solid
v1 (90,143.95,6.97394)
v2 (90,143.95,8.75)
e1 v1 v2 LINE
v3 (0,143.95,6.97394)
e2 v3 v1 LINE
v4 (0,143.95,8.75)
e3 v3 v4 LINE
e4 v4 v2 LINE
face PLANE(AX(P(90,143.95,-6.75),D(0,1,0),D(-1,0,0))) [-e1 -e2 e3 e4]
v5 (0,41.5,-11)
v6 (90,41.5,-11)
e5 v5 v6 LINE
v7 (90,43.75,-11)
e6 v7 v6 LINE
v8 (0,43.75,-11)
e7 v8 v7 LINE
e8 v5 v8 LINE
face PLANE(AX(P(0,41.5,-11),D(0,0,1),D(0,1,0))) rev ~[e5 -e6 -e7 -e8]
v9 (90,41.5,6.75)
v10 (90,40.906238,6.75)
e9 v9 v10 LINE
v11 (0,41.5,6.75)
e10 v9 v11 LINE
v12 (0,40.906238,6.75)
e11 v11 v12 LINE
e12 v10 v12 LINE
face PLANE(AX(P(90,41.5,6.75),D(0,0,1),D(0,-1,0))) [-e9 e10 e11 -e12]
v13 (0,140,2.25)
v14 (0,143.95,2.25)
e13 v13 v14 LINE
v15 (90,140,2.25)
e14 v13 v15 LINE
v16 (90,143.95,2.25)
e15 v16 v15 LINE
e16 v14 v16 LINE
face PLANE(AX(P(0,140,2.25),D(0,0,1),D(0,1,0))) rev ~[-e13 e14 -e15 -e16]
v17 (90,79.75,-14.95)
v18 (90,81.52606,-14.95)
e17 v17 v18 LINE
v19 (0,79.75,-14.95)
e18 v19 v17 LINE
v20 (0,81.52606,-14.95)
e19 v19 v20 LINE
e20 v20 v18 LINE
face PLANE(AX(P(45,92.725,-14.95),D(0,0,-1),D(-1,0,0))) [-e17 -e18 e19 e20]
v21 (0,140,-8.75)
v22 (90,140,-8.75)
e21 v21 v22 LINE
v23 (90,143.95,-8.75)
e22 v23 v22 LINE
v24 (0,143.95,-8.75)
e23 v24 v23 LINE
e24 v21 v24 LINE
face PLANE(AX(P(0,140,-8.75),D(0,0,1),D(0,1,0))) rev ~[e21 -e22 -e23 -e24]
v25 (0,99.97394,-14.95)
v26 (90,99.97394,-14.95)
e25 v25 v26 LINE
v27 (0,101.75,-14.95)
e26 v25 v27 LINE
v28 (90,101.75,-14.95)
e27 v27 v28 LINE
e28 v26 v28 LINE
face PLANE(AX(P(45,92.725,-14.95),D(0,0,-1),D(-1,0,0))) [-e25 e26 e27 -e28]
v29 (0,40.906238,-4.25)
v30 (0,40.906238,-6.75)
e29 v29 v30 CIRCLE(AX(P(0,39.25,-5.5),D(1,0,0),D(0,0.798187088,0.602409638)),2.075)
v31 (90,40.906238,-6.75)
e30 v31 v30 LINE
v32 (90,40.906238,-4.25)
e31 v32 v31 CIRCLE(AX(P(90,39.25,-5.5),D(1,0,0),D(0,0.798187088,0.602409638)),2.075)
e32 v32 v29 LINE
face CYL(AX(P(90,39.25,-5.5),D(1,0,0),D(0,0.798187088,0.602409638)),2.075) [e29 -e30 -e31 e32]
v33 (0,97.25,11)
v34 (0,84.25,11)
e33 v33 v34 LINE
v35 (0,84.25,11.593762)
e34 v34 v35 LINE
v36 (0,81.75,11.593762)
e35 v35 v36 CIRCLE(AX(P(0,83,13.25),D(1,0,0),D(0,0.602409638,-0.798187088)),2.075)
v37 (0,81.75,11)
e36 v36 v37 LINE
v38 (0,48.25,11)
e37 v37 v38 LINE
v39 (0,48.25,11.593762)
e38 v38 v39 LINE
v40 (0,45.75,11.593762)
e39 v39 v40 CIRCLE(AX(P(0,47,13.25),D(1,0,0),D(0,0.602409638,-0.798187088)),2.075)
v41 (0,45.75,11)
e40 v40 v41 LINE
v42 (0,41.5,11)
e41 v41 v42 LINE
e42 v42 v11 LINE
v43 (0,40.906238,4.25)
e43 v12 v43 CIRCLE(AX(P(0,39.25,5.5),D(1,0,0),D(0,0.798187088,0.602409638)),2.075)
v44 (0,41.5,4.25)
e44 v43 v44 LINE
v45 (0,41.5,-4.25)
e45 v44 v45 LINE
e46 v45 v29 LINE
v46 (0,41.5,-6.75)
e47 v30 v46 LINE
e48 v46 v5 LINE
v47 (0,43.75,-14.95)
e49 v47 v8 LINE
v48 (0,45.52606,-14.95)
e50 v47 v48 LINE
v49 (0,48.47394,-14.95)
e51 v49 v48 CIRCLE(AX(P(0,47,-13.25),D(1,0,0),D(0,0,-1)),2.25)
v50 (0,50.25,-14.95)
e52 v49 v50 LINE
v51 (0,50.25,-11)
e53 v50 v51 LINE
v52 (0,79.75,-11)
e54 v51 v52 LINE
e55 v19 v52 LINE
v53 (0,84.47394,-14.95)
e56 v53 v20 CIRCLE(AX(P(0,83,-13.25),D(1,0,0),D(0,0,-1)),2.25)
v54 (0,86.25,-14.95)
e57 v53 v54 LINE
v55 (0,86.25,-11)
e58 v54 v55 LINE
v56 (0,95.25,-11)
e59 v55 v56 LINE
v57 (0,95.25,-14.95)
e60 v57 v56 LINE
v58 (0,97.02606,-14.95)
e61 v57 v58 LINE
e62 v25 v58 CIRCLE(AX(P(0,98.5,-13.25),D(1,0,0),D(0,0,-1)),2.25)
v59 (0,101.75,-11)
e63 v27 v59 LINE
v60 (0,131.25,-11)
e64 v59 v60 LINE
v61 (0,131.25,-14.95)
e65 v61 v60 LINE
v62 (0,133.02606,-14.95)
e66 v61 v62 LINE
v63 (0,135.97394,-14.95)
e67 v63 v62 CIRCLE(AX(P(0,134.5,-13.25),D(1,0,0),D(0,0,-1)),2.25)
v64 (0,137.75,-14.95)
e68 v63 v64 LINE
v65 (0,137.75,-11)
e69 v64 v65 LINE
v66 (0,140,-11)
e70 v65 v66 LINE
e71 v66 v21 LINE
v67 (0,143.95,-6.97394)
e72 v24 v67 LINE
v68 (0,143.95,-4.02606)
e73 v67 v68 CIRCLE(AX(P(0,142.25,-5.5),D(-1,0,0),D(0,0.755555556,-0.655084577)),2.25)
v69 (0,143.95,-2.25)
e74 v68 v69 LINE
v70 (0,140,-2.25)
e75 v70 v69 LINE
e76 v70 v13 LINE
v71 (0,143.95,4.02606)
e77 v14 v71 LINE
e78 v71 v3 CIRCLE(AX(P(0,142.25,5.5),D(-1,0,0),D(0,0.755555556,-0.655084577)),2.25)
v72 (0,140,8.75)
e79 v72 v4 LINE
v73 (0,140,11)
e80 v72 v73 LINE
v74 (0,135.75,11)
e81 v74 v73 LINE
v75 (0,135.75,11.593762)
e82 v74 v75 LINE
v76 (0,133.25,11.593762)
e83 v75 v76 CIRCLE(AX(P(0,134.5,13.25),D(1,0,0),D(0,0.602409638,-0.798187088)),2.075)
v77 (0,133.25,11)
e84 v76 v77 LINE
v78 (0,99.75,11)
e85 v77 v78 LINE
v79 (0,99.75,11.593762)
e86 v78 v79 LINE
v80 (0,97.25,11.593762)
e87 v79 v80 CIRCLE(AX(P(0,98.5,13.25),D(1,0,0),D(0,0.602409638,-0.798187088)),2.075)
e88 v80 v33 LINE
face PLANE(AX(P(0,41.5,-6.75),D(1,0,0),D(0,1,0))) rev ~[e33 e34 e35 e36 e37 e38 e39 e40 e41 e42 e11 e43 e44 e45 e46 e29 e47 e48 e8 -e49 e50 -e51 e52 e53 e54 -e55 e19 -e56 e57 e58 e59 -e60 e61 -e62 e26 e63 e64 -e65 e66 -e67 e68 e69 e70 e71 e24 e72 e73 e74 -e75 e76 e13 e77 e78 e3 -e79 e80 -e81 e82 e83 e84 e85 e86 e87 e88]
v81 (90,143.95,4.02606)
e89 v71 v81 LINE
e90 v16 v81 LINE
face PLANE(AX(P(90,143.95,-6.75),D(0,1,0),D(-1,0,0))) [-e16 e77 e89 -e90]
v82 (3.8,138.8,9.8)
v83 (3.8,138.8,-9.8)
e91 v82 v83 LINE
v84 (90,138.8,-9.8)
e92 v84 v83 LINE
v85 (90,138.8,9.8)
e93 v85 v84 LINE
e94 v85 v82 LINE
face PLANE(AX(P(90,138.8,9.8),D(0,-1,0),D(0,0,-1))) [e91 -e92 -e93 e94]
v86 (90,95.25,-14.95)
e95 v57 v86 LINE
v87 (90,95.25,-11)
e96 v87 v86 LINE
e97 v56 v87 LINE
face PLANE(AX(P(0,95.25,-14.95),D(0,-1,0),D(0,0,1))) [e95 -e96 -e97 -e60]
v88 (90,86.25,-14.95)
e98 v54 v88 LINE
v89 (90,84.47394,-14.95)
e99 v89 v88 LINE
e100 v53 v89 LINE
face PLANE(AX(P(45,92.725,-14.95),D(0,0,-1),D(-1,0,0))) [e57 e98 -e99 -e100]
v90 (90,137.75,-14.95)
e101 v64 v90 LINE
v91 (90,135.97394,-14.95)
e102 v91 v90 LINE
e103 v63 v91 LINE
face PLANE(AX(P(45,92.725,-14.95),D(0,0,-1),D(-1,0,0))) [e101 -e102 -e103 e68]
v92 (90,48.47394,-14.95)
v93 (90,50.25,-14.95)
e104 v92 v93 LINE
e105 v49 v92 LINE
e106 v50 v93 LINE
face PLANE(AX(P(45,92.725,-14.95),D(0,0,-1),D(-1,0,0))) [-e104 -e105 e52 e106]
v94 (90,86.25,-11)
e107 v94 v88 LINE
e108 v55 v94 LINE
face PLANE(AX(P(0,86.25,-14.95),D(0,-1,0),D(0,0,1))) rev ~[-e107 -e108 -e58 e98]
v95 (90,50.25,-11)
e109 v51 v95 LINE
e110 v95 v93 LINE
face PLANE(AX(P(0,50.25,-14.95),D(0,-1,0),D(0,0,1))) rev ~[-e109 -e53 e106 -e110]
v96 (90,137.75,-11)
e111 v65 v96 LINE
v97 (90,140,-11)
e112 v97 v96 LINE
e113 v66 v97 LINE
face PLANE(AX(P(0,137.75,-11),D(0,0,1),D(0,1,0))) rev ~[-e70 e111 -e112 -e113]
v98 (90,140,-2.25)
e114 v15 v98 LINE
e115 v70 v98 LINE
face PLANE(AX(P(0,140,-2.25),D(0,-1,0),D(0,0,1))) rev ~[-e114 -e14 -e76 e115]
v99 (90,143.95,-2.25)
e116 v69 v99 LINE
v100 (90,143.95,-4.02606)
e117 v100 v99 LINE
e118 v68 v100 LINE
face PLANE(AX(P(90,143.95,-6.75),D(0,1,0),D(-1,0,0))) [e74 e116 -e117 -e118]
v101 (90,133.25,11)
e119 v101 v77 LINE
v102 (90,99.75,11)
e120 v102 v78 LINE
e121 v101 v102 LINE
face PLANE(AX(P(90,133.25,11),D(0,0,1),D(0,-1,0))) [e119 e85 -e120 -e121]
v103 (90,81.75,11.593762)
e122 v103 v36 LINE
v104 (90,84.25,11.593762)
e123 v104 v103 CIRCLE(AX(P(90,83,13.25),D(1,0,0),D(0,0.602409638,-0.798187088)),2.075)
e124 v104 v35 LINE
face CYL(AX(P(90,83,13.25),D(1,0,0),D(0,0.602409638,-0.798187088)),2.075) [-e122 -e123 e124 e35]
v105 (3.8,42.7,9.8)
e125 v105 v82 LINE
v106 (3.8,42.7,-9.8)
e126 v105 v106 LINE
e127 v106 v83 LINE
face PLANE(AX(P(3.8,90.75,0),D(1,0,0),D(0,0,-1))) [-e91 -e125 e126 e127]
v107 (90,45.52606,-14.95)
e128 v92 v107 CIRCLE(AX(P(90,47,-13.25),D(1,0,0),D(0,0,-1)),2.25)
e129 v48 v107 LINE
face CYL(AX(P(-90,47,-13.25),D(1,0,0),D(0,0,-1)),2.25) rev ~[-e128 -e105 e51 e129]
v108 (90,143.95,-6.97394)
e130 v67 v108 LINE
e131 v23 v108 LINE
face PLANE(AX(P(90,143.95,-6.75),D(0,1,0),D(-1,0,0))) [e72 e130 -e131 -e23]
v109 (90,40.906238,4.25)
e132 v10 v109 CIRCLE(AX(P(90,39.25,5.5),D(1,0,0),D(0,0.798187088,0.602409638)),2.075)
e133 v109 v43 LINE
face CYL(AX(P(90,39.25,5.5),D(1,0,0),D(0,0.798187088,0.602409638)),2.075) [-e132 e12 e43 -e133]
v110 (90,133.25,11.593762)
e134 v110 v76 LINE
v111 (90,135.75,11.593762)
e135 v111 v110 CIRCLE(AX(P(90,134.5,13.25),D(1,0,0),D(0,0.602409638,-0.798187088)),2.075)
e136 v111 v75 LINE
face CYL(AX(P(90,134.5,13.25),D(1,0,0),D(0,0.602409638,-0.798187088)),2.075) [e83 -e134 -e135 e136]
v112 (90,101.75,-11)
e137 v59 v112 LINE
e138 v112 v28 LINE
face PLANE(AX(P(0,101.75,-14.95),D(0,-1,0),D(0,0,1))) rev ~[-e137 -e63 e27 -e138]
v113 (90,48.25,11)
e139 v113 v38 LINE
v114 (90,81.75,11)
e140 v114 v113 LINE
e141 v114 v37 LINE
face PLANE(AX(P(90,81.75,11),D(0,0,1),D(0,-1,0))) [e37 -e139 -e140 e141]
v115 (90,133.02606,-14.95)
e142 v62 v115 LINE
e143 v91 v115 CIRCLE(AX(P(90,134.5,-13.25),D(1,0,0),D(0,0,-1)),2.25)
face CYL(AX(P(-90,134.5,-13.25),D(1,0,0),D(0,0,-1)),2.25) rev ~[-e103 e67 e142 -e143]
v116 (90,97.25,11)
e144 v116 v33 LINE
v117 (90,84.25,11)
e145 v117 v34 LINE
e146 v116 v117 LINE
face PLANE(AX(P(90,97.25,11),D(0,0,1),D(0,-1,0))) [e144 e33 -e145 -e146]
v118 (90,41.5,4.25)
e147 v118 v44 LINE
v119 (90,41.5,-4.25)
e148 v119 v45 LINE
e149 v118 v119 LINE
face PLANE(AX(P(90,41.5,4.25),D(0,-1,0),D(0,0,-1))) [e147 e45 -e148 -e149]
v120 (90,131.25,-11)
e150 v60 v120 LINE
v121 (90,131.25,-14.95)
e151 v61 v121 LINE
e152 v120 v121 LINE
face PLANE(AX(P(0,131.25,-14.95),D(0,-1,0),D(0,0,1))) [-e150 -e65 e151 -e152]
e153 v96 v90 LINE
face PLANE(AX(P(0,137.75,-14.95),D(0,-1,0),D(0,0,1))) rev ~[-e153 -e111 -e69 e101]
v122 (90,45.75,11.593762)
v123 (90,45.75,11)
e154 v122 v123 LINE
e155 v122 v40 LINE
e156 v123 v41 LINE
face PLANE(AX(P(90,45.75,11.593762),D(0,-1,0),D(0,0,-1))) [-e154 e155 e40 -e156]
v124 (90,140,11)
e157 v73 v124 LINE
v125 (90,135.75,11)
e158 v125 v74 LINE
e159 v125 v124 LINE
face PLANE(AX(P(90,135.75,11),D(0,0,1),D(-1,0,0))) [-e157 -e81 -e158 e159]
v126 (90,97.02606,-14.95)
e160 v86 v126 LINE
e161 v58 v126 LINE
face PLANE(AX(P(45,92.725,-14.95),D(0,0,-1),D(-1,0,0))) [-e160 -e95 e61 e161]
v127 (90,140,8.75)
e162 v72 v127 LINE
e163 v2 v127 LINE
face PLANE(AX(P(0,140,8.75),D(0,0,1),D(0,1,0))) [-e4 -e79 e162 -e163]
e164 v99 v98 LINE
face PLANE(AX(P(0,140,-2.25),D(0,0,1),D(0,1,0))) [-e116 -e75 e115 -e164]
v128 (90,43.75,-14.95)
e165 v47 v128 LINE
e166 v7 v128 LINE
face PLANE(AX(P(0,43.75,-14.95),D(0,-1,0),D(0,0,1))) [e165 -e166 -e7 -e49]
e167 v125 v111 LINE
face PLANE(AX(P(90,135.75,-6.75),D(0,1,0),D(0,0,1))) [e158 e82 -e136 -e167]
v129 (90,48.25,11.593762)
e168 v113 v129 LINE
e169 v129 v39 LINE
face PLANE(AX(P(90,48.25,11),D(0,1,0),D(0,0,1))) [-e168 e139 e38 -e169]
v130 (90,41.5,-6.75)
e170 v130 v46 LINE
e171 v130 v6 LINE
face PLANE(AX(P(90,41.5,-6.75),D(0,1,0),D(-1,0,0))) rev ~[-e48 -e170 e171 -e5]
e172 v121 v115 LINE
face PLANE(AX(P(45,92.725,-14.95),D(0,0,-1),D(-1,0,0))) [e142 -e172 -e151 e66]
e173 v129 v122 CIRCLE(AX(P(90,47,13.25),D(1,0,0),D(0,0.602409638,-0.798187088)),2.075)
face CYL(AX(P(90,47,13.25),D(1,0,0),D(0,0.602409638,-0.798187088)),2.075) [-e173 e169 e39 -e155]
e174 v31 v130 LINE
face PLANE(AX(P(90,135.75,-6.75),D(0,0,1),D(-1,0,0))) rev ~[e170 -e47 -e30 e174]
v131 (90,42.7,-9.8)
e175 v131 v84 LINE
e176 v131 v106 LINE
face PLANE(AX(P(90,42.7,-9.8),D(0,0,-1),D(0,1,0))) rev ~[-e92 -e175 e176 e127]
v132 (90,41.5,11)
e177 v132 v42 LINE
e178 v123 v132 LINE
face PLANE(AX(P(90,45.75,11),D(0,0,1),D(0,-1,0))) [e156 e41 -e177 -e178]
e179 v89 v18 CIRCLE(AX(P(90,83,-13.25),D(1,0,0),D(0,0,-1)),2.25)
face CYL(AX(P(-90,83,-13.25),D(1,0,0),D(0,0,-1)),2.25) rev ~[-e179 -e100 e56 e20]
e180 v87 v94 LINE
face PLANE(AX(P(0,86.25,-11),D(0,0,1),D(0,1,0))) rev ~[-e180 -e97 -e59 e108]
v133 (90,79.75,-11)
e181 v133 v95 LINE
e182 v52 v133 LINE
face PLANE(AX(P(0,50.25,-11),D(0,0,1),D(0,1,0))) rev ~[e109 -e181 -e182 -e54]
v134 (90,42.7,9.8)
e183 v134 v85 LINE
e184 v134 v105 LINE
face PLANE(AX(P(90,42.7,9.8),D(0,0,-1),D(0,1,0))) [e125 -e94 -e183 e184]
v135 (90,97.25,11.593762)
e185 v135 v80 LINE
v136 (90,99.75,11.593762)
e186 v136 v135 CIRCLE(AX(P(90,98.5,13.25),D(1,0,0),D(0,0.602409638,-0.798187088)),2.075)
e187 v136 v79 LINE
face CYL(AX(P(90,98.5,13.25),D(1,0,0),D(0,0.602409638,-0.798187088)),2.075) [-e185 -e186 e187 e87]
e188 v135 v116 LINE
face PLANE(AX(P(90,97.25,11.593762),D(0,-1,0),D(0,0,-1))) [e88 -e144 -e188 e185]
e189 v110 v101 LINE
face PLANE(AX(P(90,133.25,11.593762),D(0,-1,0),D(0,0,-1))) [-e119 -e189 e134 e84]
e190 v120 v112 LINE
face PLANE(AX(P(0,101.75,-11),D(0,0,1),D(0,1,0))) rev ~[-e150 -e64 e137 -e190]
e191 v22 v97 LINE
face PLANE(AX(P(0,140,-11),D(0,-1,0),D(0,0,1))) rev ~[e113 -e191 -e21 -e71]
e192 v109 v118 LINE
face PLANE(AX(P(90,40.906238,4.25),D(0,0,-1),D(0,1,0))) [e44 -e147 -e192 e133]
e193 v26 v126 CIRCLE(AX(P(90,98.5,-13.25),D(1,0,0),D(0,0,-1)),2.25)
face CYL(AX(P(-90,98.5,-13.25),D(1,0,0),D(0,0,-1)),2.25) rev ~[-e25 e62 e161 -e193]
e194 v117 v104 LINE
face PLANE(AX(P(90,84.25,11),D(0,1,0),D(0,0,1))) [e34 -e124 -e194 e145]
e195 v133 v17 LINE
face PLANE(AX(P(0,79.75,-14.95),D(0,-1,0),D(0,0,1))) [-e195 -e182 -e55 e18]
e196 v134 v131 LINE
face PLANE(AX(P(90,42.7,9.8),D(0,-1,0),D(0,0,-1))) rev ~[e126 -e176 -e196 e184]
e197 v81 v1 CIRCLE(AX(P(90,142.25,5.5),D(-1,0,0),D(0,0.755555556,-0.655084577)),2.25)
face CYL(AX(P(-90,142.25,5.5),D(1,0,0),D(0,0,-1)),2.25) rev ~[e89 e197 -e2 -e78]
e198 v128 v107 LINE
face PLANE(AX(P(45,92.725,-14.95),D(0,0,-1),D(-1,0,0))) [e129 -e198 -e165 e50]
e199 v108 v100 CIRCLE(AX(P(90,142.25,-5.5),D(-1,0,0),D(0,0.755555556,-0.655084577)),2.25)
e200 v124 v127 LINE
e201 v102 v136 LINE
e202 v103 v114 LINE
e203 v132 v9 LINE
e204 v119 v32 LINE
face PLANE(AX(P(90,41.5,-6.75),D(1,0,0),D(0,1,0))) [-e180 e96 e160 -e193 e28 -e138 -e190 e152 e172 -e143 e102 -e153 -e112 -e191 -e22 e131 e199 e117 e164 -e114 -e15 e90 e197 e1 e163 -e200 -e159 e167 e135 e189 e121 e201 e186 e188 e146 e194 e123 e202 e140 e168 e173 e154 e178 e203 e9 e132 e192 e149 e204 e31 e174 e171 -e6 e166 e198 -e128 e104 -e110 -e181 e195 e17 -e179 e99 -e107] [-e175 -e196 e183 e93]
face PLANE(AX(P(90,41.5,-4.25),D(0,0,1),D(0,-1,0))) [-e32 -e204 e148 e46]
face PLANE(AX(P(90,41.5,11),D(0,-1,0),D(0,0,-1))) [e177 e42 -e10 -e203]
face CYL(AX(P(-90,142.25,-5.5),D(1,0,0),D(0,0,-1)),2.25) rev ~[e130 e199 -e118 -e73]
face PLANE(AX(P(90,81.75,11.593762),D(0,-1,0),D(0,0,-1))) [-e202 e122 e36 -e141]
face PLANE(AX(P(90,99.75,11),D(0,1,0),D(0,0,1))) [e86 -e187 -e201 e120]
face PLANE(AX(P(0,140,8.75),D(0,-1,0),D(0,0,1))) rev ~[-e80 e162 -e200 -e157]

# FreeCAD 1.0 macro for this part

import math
import FreeCAD as App
import Part
import Sketcher

V = App.Vector

doc = App.newDocument("Part")
body = doc.addObject("PartDesign::Body", "Body")

sketch1 = body.newObject("Sketcher::SketchObject", "Sketch")
sketch1.AttachmentSupport = (doc.getObject("YZ_Plane"), [""])
sketch1.MapMode = "FlatFace"
sketch1.AttachmentOffset = App.Placement(V(0, 0, 90), App.Rotation())
sketch1.addGeometry([
    Part.LineSegment(V(40.9, -6.8, 0), V(135.8, -6.8, 0)),
    Part.LineSegment(V(135.8, -6.8, 0), V(135.8, 11.6, 0)),
    Part.ArcOfCircle(Part.Circle(V(134.5, 13.2, 0), V(0, 0, 1), 2.1), math.radians(-53), math.radians(233)),
    Part.LineSegment(V(133.2, 11.6, 0), V(133.2, 11, 0)),
    Part.LineSegment(V(133.2, 11, 0), V(99.8, 11, 0)),
    Part.LineSegment(V(99.8, 11, 0), V(99.8, 11.6, 0)),
    Part.ArcOfCircle(Part.Circle(V(98.5, 13.2, 0), V(0, 0, 1), 2.1), math.radians(-53), math.radians(233)),
    Part.LineSegment(V(97.2, 11.6, 0), V(97.2, 11, 0)),
    Part.LineSegment(V(97.2, 11, 0), V(84.2, 11, 0)),
    Part.LineSegment(V(84.2, 11, 0), V(84.2, 11.6, 0)),
    Part.ArcOfCircle(Part.Circle(V(83, 13.2, 0), V(0, 0, 1), 2.1), math.radians(-53), math.radians(233)),
    Part.LineSegment(V(81.8, 11.6, 0), V(81.8, 11, 0)),
    Part.LineSegment(V(81.8, 11, 0), V(48.2, 11, 0)),
    Part.LineSegment(V(48.2, 11, 0), V(48.2, 11.6, 0)),
    Part.ArcOfCircle(Part.Circle(V(47, 13.2, 0), V(0, 0, 1), 2.1), math.radians(-53), math.radians(233)),
    Part.LineSegment(V(45.8, 11.6, 0), V(45.8, 11, 0)),
    Part.LineSegment(V(45.8, 11, 0), V(41.5, 11, 0)),
    Part.LineSegment(V(41.5, 11, 0), V(41.5, 6.8, 0)),
    Part.LineSegment(V(41.5, 6.8, 0), V(40.9, 6.8, 0)),
    Part.ArcOfCircle(Part.Circle(V(39.2, 5.5, 0), V(0, 0, 1), 2.1), math.radians(37), math.radians(323)),
    Part.LineSegment(V(40.9, 4.2, 0), V(41.5, 4.2, 0)),
    Part.LineSegment(V(41.5, 4.2, 0), V(41.5, -4.2, 0)),
    Part.LineSegment(V(41.5, -4.2, 0), V(40.9, -4.2, 0)),
    Part.ArcOfCircle(Part.Circle(V(39.2, -5.5, 0), V(0, 0, 1), 2.1), math.radians(37), math.radians(323)),
], False)
sketch1.addConstraint([
    Sketcher.Constraint("Coincident", 0, 2, 1, 1),
    Sketcher.Constraint("Coincident", 1, 2, 2, 1),
    Sketcher.Constraint("Coincident", 2, 2, 3, 1),
    Sketcher.Constraint("Coincident", 3, 2, 4, 1),
    Sketcher.Constraint("Coincident", 4, 2, 5, 1),
    Sketcher.Constraint("Coincident", 5, 2, 6, 1),
    Sketcher.Constraint("Coincident", 6, 2, 7, 1),
    Sketcher.Constraint("Coincident", 7, 2, 8, 1),
    Sketcher.Constraint("Coincident", 8, 2, 9, 1),
    Sketcher.Constraint("Coincident", 9, 2, 10, 1),
    Sketcher.Constraint("Coincident", 10, 2, 11, 1),
    Sketcher.Constraint("Coincident", 11, 2, 12, 1),
    Sketcher.Constraint("Coincident", 12, 2, 13, 1),
    Sketcher.Constraint("Coincident", 13, 2, 14, 1),
    Sketcher.Constraint("Coincident", 14, 2, 15, 1),
    Sketcher.Constraint("Coincident", 15, 2, 16, 1),
    Sketcher.Constraint("Coincident", 16, 2, 17, 1),
    Sketcher.Constraint("Coincident", 17, 2, 18, 1),
    Sketcher.Constraint("Coincident", 18, 2, 19, 1),
    Sketcher.Constraint("Coincident", 19, 2, 20, 1),
    Sketcher.Constraint("Coincident", 20, 2, 21, 1),
    Sketcher.Constraint("Coincident", 21, 2, 22, 1),
    Sketcher.Constraint("Coincident", 22, 2, 23, 1),
    Sketcher.Constraint("Coincident", 23, 2, 0, 1),
    Sketcher.Constraint("Horizontal", 0),
    Sketcher.Constraint("Vertical", 1),
    Sketcher.Constraint("Vertical", 3),
    Sketcher.Constraint("Horizontal", 4),
    Sketcher.Constraint("Vertical", 5),
    Sketcher.Constraint("Vertical", 7),
    Sketcher.Constraint("Horizontal", 8),
    Sketcher.Constraint("Vertical", 9),
    Sketcher.Constraint("Vertical", 11),
    Sketcher.Constraint("Horizontal", 12),
    Sketcher.Constraint("Vertical", 13),
    Sketcher.Constraint("Vertical", 15),
    Sketcher.Constraint("Horizontal", 16),
    Sketcher.Constraint("Vertical", 17),
    Sketcher.Constraint("Horizontal", 18),
    Sketcher.Constraint("Horizontal", 20),
    Sketcher.Constraint("Vertical", 21),
    Sketcher.Constraint("Horizontal", 22),
    Sketcher.Constraint("Equal", 2, 6),
    Sketcher.Constraint("Equal", 6, 10),
    Sketcher.Constraint("Equal", 10, 14),
    Sketcher.Constraint("Equal", 14, 19),
    Sketcher.Constraint("Equal", 19, 23),
    Sketcher.Constraint("Symmetric", 19, 3, 23, 3, -1),
    Sketcher.Constraint("Horizontal", 2, 3, 6, 3),
    Sketcher.Constraint("Horizontal", 6, 3, 10, 3),
    Sketcher.Constraint("Horizontal", 10, 3, 14, 3),
    Sketcher.Constraint("Horizontal", 1, 2, 2, 2),
    Sketcher.Constraint("Horizontal", 2, 2, 5, 2),
    Sketcher.Constraint("Horizontal", 5, 2, 6, 2),
    Sketcher.Constraint("Horizontal", 4, 2, 7, 2),
    Sketcher.Constraint("Horizontal", 6, 2, 9, 2),
    Sketcher.Constraint("Horizontal", 9, 2, 10, 2),
    Sketcher.Constraint("Horizontal", 8, 2, 11, 2),
    Sketcher.Constraint("Horizontal", 10, 2, 13, 2),
    Sketcher.Constraint("Horizontal", 13, 2, 14, 2),
    Sketcher.Constraint("Horizontal", 12, 2, 15, 2),
    Sketcher.Constraint("Vertical", 18, 2, 19, 2),
    Sketcher.Constraint("Vertical", 17, 2, 20, 2),
    Sketcher.Constraint("Vertical", 19, 2, 22, 2),
    Sketcher.Constraint("Vertical", 22, 2, 23, 2),
    Sketcher.Constraint("Equal", 4, 12),
    Sketcher.Constraint("Equal", 22, 3),
    Sketcher.Constraint("Equal", 16, 17),
    Sketcher.Constraint("DistanceX", 8, 2, 8, 1, 13.0),
    Sketcher.Constraint("DistanceX", 4, 2, 4, 1, 33.5),
    Sketcher.Constraint("DistanceY", 21, 2, 21, 1, 8.5),
    Sketcher.Constraint("DistanceX", -1, 1, 10, 3, 83.0),
    Sketcher.Constraint("DistanceX", -1, 1, 14, 3, 47.0),
    Sketcher.Constraint("DistanceY", -1, 1, 3, 2, 11.0),
    Sketcher.Constraint("Radius", 2, 2.075),
    Sketcher.Constraint("DistanceY", 23, 3, 19, 3, 11.0),
    Sketcher.Constraint("DistanceY", 0, 2, 2, 3, 20.0),
])
pad1 = body.newObject("PartDesign::Pad", "Pad")
pad1.Profile = sketch1
pad1.Length = 90
pad1.Reversed = True

sketch2 = body.newObject("Sketcher::SketchObject", "Sketch001")
sketch2.AttachmentSupport = (doc.getObject("XZ_Plane"), [""])
sketch2.MapMode = "FlatFace"
sketch2.AttachmentOffset = App.Placement(V(0, 0, -135.75), App.Rotation())
sketch2.addGeometry([
    Part.LineSegment(V(90, 11, 0), V(90, -7, 0)),
    Part.LineSegment(V(90, -7, 0), V(0, -7, 0)),
    Part.LineSegment(V(0, -7, 0), V(0, 11, 0)),
    Part.LineSegment(V(0, 11, 0), V(90, 11, 0)),
], False)
sketch2.addConstraint([
    Sketcher.Constraint("Coincident", 0, 2, 1, 1),
    Sketcher.Constraint("Coincident", 1, 2, 2, 1),
    Sketcher.Constraint("Coincident", 2, 2, 3, 1),
    Sketcher.Constraint("Coincident", 3, 2, 0, 1),
    Sketcher.Constraint("Vertical", 0),
    Sketcher.Constraint("Horizontal", 1),
    Sketcher.Constraint("Vertical", 2),
    Sketcher.Constraint("Horizontal", 3),
    Sketcher.Constraint("PointOnObject", 1, 2, -2),
    Sketcher.Constraint("DistanceX", 1, 2, 1, 1, 90.0),
    Sketcher.Constraint("DistanceY", -1, 1, 2, 2, 11.0),
    Sketcher.Constraint("DistanceY", 0, 2, 0, 1, 17.75),
])
pad2 = body.newObject("PartDesign::Pad", "Pad001")
pad2.Profile = sketch2
pad2.Length = 8.2
pad2.Reversed = True

sketch3 = body.newObject("Sketcher::SketchObject", "Sketch002")
sketch3.AttachmentSupport = (doc.getObject("XY_Plane"), [""])
sketch3.MapMode = "FlatFace"
sketch3.AttachmentOffset = App.Placement(V(0, 0, -6.75), App.Rotation())
sketch3.addGeometry([
    Part.LineSegment(V(90, 144, 0), V(90, 42, 0)),
    Part.LineSegment(V(90, 42, 0), V(0, 42, 0)),
    Part.LineSegment(V(0, 42, 0), V(0, 144, 0)),
    Part.LineSegment(V(0, 144, 0), V(90, 144, 0)),
], False)
sketch3.addConstraint([
    Sketcher.Constraint("Coincident", 0, 2, 1, 1),
    Sketcher.Constraint("Coincident", 1, 2, 2, 1),
    Sketcher.Constraint("Coincident", 2, 2, 3, 1),
    Sketcher.Constraint("Coincident", 3, 2, 0, 1),
    Sketcher.Constraint("Vertical", 0),
    Sketcher.Constraint("Horizontal", 1),
    Sketcher.Constraint("Vertical", 2),
    Sketcher.Constraint("Horizontal", 3),
    Sketcher.Constraint("PointOnObject", 1, 2, -2),
    Sketcher.Constraint("DistanceX", 1, 2, 1, 1, 90.0),
    Sketcher.Constraint("DistanceY", 0, 2, 0, 1, 102.45),
    Sketcher.Constraint("DistanceY", -1, 1, 0, 2, 41.5),
])
pad3 = body.newObject("PartDesign::Pad", "Pad002")
pad3.Profile = sketch3
pad3.Length = 8.2
pad3.Reversed = True

sketch4 = body.newObject("Sketcher::SketchObject", "Sketch003")
sketch4.AttachmentSupport = (doc.getObject("YZ_Plane"), [""])
sketch4.MapMode = "FlatFace"
sketch4.addGeometry([
    Part.LineSegment(V(43.8, -14.9, 0), V(41.5, -14.9, 0)),
    Part.LineSegment(V(41.5, -14.9, 0), V(41.5, -11, 0)),
    Part.LineSegment(V(41.5, -11, 0), V(43.8, -11, 0)),
    Part.LineSegment(V(43.8, -11, 0), V(43.8, -14.9, 0)),
], False)
sketch4.addConstraint([
    Sketcher.Constraint("Coincident", 0, 2, 1, 1),
    Sketcher.Constraint("Coincident", 1, 2, 2, 1),
    Sketcher.Constraint("Coincident", 2, 2, 3, 1),
    Sketcher.Constraint("Coincident", 3, 2, 0, 1),
    Sketcher.Constraint("Horizontal", 0),
    Sketcher.Constraint("Vertical", 1),
    Sketcher.Constraint("Horizontal", 2),
    Sketcher.Constraint("Vertical", 3),
    Sketcher.Constraint("DistanceY", 1, 2, -1, 1, 11.0),
    Sketcher.Constraint("DistanceX", 0, 2, 0, 1, 2.25),
    Sketcher.Constraint("DistanceY", 1, 1, 1, 2, 3.95),
    Sketcher.Constraint("DistanceX", -1, 1, 0, 2, 41.5),
])
pocket1 = body.newObject("PartDesign::Pocket", "Pocket")
pocket1.Profile = sketch4
pocket1.Type = "ThroughAll"
pocket1.Reversed = True

sketch5 = body.newObject("Sketcher::SketchObject", "Sketch004")
sketch5.AttachmentSupport = (doc.getObject("YZ_Plane"), [""])
sketch5.MapMode = "FlatFace"
sketch5.addGeometry([
    Part.LineSegment(V(79.8, -14.9, 0), V(50.2, -14.9, 0)),
    Part.LineSegment(V(50.2, -14.9, 0), V(50.2, -11, 0)),
    Part.LineSegment(V(50.2, -11, 0), V(79.8, -11, 0)),
    Part.LineSegment(V(79.8, -11, 0), V(79.8, -14.9, 0)),
], False)
sketch5.addConstraint([
    Sketcher.Constraint("Coincident", 0, 2, 1, 1),
    Sketcher.Constraint("Coincident", 1, 2, 2, 1),
    Sketcher.Constraint("Coincident", 2, 2, 3, 1),
    Sketcher.Constraint("Coincident", 3, 2, 0, 1),
    Sketcher.Constraint("Horizontal", 0),
    Sketcher.Constraint("Vertical", 1),
    Sketcher.Constraint("Horizontal", 2),
    Sketcher.Constraint("Vertical", 3),
    Sketcher.Constraint("DistanceX", 0, 2, 0, 1, 29.5),
    Sketcher.Constraint("DistanceY", 1, 2, -1, 1, 11.0),
    Sketcher.Constraint("DistanceY", 1, 1, 1, 2, 3.95),
    Sketcher.Constraint("DistanceX", -1, 1, 0, 2, 50.25),
])
pocket2 = body.newObject("PartDesign::Pocket", "Pocket001")
pocket2.Profile = sketch5
pocket2.Type = "ThroughAll"
pocket2.Reversed = True

sketch6 = body.newObject("Sketcher::SketchObject", "Sketch005")
sketch6.AttachmentSupport = (doc.getObject("YZ_Plane"), [""])
sketch6.MapMode = "FlatFace"
sketch6.addGeometry([
    Part.LineSegment(V(95.2, -14.9, 0), V(86.2, -14.9, 0)),
    Part.LineSegment(V(86.2, -14.9, 0), V(86.2, -11, 0)),
    Part.LineSegment(V(86.2, -11, 0), V(95.2, -11, 0)),
    Part.LineSegment(V(95.2, -11, 0), V(95.2, -14.9, 0)),
], False)
sketch6.addConstraint([
    Sketcher.Constraint("Coincident", 0, 2, 1, 1),
    Sketcher.Constraint("Coincident", 1, 2, 2, 1),
    Sketcher.Constraint("Coincident", 2, 2, 3, 1),
    Sketcher.Constraint("Coincident", 3, 2, 0, 1),
    Sketcher.Constraint("Horizontal", 0),
    Sketcher.Constraint("Vertical", 1),
    Sketcher.Constraint("Horizontal", 2),
    Sketcher.Constraint("Vertical", 3),
    Sketcher.Constraint("DistanceX", 0, 2, 0, 1, 9.0),
    Sketcher.Constraint("DistanceY", 1, 2, -1, 1, 11.0),
    Sketcher.Constraint("DistanceY", 1, 1, 1, 2, 3.95),
    Sketcher.Constraint("DistanceX", -1, 1, 0, 2, 86.25),
])
pocket3 = body.newObject("PartDesign::Pocket", "Pocket002")
pocket3.Profile = sketch6
pocket3.Type = "ThroughAll"
pocket3.Reversed = True

sketch7 = body.newObject("Sketcher::SketchObject", "Sketch006")
sketch7.AttachmentSupport = (doc.getObject("YZ_Plane"), [""])
sketch7.MapMode = "FlatFace"
sketch7.addGeometry([
    Part.LineSegment(V(131.2, -14.9, 0), V(101.8, -14.9, 0)),
    Part.LineSegment(V(101.8, -14.9, 0), V(101.8, -11, 0)),
    Part.LineSegment(V(101.8, -11, 0), V(131.2, -11, 0)),
    Part.LineSegment(V(131.2, -11, 0), V(131.2, -14.9, 0)),
], False)
sketch7.addConstraint([
    Sketcher.Constraint("Coincident", 0, 2, 1, 1),
    Sketcher.Constraint("Coincident", 1, 2, 2, 1),
    Sketcher.Constraint("Coincident", 2, 2, 3, 1),
    Sketcher.Constraint("Coincident", 3, 2, 0, 1),
    Sketcher.Constraint("Horizontal", 0),
    Sketcher.Constraint("Vertical", 1),
    Sketcher.Constraint("Horizontal", 2),
    Sketcher.Constraint("Vertical", 3),
    Sketcher.Constraint("DistanceX", 0, 2, 0, 1, 29.5),
    Sketcher.Constraint("DistanceY", 1, 2, -1, 1, 11.0),
    Sketcher.Constraint("DistanceY", 1, 1, 1, 2, 3.95),
    Sketcher.Constraint("DistanceX", -1, 1, 0, 2, 101.75),
])
pocket4 = body.newObject("PartDesign::Pocket", "Pocket003")
pocket4.Profile = sketch7
pocket4.Type = "ThroughAll"
pocket4.Reversed = True

sketch8 = body.newObject("Sketcher::SketchObject", "Sketch007")
sketch8.AttachmentSupport = (doc.getObject("YZ_Plane"), [""])
sketch8.MapMode = "FlatFace"
sketch8.addGeometry([
    Part.LineSegment(V(143.9, -14.9, 0), V(137.8, -14.9, 0)),
    Part.LineSegment(V(137.8, -14.9, 0), V(137.8, -11, 0)),
    Part.LineSegment(V(137.8, -11, 0), V(143.9, -11, 0)),
    Part.LineSegment(V(143.9, -11, 0), V(143.9, -14.9, 0)),
], False)
sketch8.addConstraint([
    Sketcher.Constraint("Coincident", 0, 2, 1, 1),
    Sketcher.Constraint("Coincident", 1, 2, 2, 1),
    Sketcher.Constraint("Coincident", 2, 2, 3, 1),
    Sketcher.Constraint("Coincident", 3, 2, 0, 1),
    Sketcher.Constraint("Horizontal", 0),
    Sketcher.Constraint("Vertical", 1),
    Sketcher.Constraint("Horizontal", 2),
    Sketcher.Constraint("Vertical", 3),
    Sketcher.Constraint("DistanceX", 0, 2, 0, 1, 6.2),
    Sketcher.Constraint("DistanceY", 1, 2, -1, 1, 11.0),
    Sketcher.Constraint("DistanceY", 1, 1, 1, 2, 3.95),
    Sketcher.Constraint("DistanceX", -1, 1, 0, 2, 137.75),
])
pocket5 = body.newObject("PartDesign::Pocket", "Pocket004")
pocket5.Profile = sketch8
pocket5.Type = "ThroughAll"
pocket5.Reversed = True

sketch9 = body.newObject("Sketcher::SketchObject", "Sketch008")
sketch9.AttachmentSupport = (doc.getObject("YZ_Plane"), [""])
sketch9.MapMode = "FlatFace"
sketch9.addGeometry([
    Part.LineSegment(V(143.9, -11, 0), V(140, -11, 0)),
    Part.LineSegment(V(140, -11, 0), V(140, -8.8, 0)),
    Part.LineSegment(V(140, -8.8, 0), V(143.9, -8.8, 0)),
    Part.LineSegment(V(143.9, -8.8, 0), V(143.9, -11, 0)),
], False)
sketch9.addConstraint([
    Sketcher.Constraint("Coincident", 0, 2, 1, 1),
    Sketcher.Constraint("Coincident", 1, 2, 2, 1),
    Sketcher.Constraint("Coincident", 2, 2, 3, 1),
    Sketcher.Constraint("Coincident", 3, 2, 0, 1),
    Sketcher.Constraint("Horizontal", 0),
    Sketcher.Constraint("Vertical", 1),
    Sketcher.Constraint("Horizontal", 2),
    Sketcher.Constraint("Vertical", 3),
    Sketcher.Constraint("DistanceX", -1, 1, 0, 2, 140.0),
    Sketcher.Constraint("DistanceY", 0, 2, -1, 1, 11.0),
    Sketcher.Constraint("DistanceX", 0, 2, 0, 1, 3.95),
    Sketcher.Constraint("DistanceY", 1, 1, 1, 2, 2.25),
])
pocket6 = body.newObject("PartDesign::Pocket", "Pocket005")
pocket6.Profile = sketch9
pocket6.Type = "ThroughAll"
pocket6.Reversed = True

sketch10 = body.newObject("Sketcher::SketchObject", "Sketch009")
sketch10.AttachmentSupport = (doc.getObject("YZ_Plane"), [""])
sketch10.MapMode = "FlatFace"
sketch10.addGeometry([
    Part.LineSegment(V(143.9, -2.2, 0), V(140, -2.2, 0)),
    Part.LineSegment(V(140, -2.2, 0), V(140, 2.2, 0)),
    Part.LineSegment(V(140, 2.2, 0), V(143.9, 2.2, 0)),
    Part.LineSegment(V(143.9, 2.2, 0), V(143.9, -2.2, 0)),
], False)
sketch10.addConstraint([
    Sketcher.Constraint("Coincident", 0, 2, 1, 1),
    Sketcher.Constraint("Coincident", 1, 2, 2, 1),
    Sketcher.Constraint("Coincident", 2, 2, 3, 1),
    Sketcher.Constraint("Coincident", 3, 2, 0, 1),
    Sketcher.Constraint("Horizontal", 0),
    Sketcher.Constraint("Vertical", 1),
    Sketcher.Constraint("Horizontal", 2),
    Sketcher.Constraint("Vertical", 3),
    Sketcher.Constraint("DistanceY", 1, 1, 1, 2, 4.5),
    Sketcher.Constraint("DistanceX", -1, 1, 0, 2, 140.0),
    Sketcher.Constraint("DistanceX", 0, 2, 0, 1, 3.95),
    Sketcher.Constraint("DistanceY", 0, 2, -1, 1, 2.25),
])
pocket7 = body.newObject("PartDesign::Pocket", "Pocket006")
pocket7.Profile = sketch10
pocket7.Type = "ThroughAll"
pocket7.Reversed = True

sketch11 = body.newObject("Sketcher::SketchObject", "Sketch010")
sketch11.AttachmentSupport = (doc.getObject("YZ_Plane"), [""])
sketch11.MapMode = "FlatFace"
sketch11.addGeometry([
    Part.LineSegment(V(143.9, 8.8, 0), V(140, 8.8, 0)),
    Part.LineSegment(V(140, 8.8, 0), V(140, 11, 0)),
    Part.LineSegment(V(140, 11, 0), V(143.9, 11, 0)),
    Part.LineSegment(V(143.9, 11, 0), V(143.9, 8.8, 0)),
], False)
sketch11.addConstraint([
    Sketcher.Constraint("Coincident", 0, 2, 1, 1),
    Sketcher.Constraint("Coincident", 1, 2, 2, 1),
    Sketcher.Constraint("Coincident", 2, 2, 3, 1),
    Sketcher.Constraint("Coincident", 3, 2, 0, 1),
    Sketcher.Constraint("Horizontal", 0),
    Sketcher.Constraint("Vertical", 1),
    Sketcher.Constraint("Horizontal", 2),
    Sketcher.Constraint("Vertical", 3),
    Sketcher.Constraint("DistanceX", -1, 1, 0, 2, 140.0),
    Sketcher.Constraint("DistanceY", -1, 1, 1, 2, 11.0),
    Sketcher.Constraint("DistanceX", 0, 2, 0, 1, 3.95),
    Sketcher.Constraint("DistanceY", 1, 1, 1, 2, 2.25),
])
pocket8 = body.newObject("PartDesign::Pocket", "Pocket007")
pocket8.Profile = sketch11
pocket8.Type = "ThroughAll"
pocket8.Reversed = True

sketch12 = body.newObject("Sketcher::SketchObject", "Sketch011")
sketch12.AttachmentSupport = (doc.getObject("YZ_Plane"), [""])
sketch12.MapMode = "FlatFace"
sketch12.AttachmentOffset = App.Placement(V(0, 0, 90), App.Rotation())
sketch12.addGeometry([
    Part.LineSegment(V(139, 10, 0), V(43, 10, 0)),
    Part.LineSegment(V(43, 10, 0), V(43, -10, 0)),
    Part.LineSegment(V(43, -10, 0), V(139, -10, 0)),
    Part.LineSegment(V(139, -10, 0), V(139, 10, 0)),
], False)
sketch12.addConstraint([
    Sketcher.Constraint("Coincident", 0, 2, 1, 1),
    Sketcher.Constraint("Coincident", 1, 2, 2, 1),
    Sketcher.Constraint("Coincident", 2, 2, 3, 1),
    Sketcher.Constraint("Coincident", 3, 2, 0, 1),
    Sketcher.Constraint("Horizontal", 0),
    Sketcher.Constraint("Vertical", 1),
    Sketcher.Constraint("Horizontal", 2),
    Sketcher.Constraint("Vertical", 3),
    Sketcher.Constraint("DistanceX", 0, 2, 0, 1, 96.1),
    Sketcher.Constraint("DistanceY", 1, 2, 1, 1, 19.6),
    Sketcher.Constraint("DistanceX", -1, 1, 0, 2, 42.7),
    Sketcher.Constraint("DistanceY", -1, 1, 0, 2, 9.8),
])
pocket9 = body.newObject("PartDesign::Pocket", "Pocket008")
pocket9.Profile = sketch12
pocket9.Length = 86.2

sketch13 = body.newObject("Sketcher::SketchObject", "Sketch012")
sketch13.AttachmentSupport = (doc.getObject("YZ_Plane"), [""])
sketch13.MapMode = "FlatFace"
sketch13.addGeometry([
    Part.Circle(V(47, -13.2, 0), V(0, 0, 1), 2.2),
    Part.Circle(V(83, -13.2, 0), V(0, 0, 1), 2.2),
    Part.Circle(V(98.5, -13.2, 0), V(0, 0, 1), 2.2),
    Part.Circle(V(134.5, -13.2, 0), V(0, 0, 1), 2.2),
    Part.Circle(V(142.2, -5.5, 0), V(0, 0, 1), 2.2),
    Part.Circle(V(142.2, 5.5, 0), V(0, 0, 1), 2.2),
], False)
sketch13.addConstraint([
    Sketcher.Constraint("Equal", 0, 1),
    Sketcher.Constraint("Equal", 1, 2),
    Sketcher.Constraint("Equal", 2, 3),
    Sketcher.Constraint("Equal", 3, 4),
    Sketcher.Constraint("Equal", 4, 5),
    Sketcher.Constraint("Symmetric", 4, 3, 5, 3, -1),
    Sketcher.Constraint("Horizontal", 0, 3, 1, 3),
    Sketcher.Constraint("Horizontal", 1, 3, 2, 3),
    Sketcher.Constraint("Horizontal", 2, 3, 3, 3),
    Sketcher.Constraint("Diameter", 0, 4.5),
    Sketcher.Constraint("DistanceX", -1, 1, 0, 3, 47.0),
    Sketcher.Constraint("DistanceX", -1, 1, 1, 3, 83.0),
    Sketcher.Constraint("DistanceX", 2, 3, 3, 3, 36.0),
    Sketcher.Constraint("DistanceY", 4, 3, 5, 3, 11.0),
    Sketcher.Constraint("DistanceX", -1, 1, 2, 3, 98.5),
    Sketcher.Constraint("DistanceY", 0, 3, -1, 1, 13.25),
    Sketcher.Constraint("DistanceX", -1, 1, 4, 3, 142.25),
])
doc.recompute()
hole = body.newObject("PartDesign::Hole", "Hole")
hole.Profile = sketch13
hole.ThreadType = "None"
hole.Diameter = 4.5
hole.DepthType = "Dimension"
hole.Depth = 90
hole.DrillPoint = "Flat"
hole.Reversed = True

sketch14 = body.newObject("Sketcher::SketchObject", "Sketch013")
sketch14.AttachmentSupport = (doc.getObject("YZ_Plane"), [""])
sketch14.MapMode = "FlatFace"
sketch14.AttachmentOffset = App.Placement(V(0, 0, 90), App.Rotation())
sketch14.addGeometry([
    Part.Circle(V(98.5, 13.2, 0), V(0, 0, 1), 1.2),
    Part.Circle(V(134.5, 13.2, 0), V(0, 0, 1), 1.2),
    Part.Circle(V(47, 13.2, 0), V(0, 0, 1), 1.2),
    Part.Circle(V(83, 13.2, 0), V(0, 0, 1), 1.2),
    Part.Circle(V(39.2, -5.5, 0), V(0, 0, 1), 1.2),
    Part.Circle(V(39.2, 5.5, 0), V(0, 0, 1), 1.2),
], False)
sketch14.addConstraint([
    Sketcher.Constraint("Equal", 0, 1),
    Sketcher.Constraint("Equal", 1, 2),
    Sketcher.Constraint("Equal", 2, 3),
    Sketcher.Constraint("Equal", 3, 4),
    Sketcher.Constraint("Equal", 4, 5),
    Sketcher.Constraint("Symmetric", 4, 3, 5, 3, -1),
    Sketcher.Constraint("Horizontal", 0, 3, 1, 3),
    Sketcher.Constraint("Horizontal", 1, 3, 2, 3),
    Sketcher.Constraint("Horizontal", 2, 3, 3, 3),
    Sketcher.Constraint("Diameter", 0, 2.5),
    Sketcher.Constraint("DistanceX", -1, 1, 2, 3, 47.0),
    Sketcher.Constraint("DistanceX", -1, 1, 3, 3, 83.0),
    Sketcher.Constraint("DistanceX", 0, 3, 1, 3, 36.0),
    Sketcher.Constraint("DistanceY", 4, 3, 5, 3, 11.0),
    Sketcher.Constraint("DistanceX", -1, 1, 0, 3, 98.5),
    Sketcher.Constraint("DistanceY", -1, 1, 0, 3, 13.25),
    Sketcher.Constraint("DistanceX", -1, 1, 4, 3, 39.25),
])
doc.recompute()
hole2 = body.newObject("PartDesign::Hole", "Hole001")
hole2.Profile = sketch14
hole2.ThreadType = "None"
hole2.Diameter = 2.5
hole2.DepthType = "Dimension"
hole2.Depth = 90
hole2.DrillPoint = "Flat"

sketch15 = body.newObject("Sketcher::SketchObject", "Sketch014")
sketch15.AttachmentSupport = (doc.getObject("YZ_Plane"), [""])
sketch15.MapMode = "FlatFace"
sketch15.AttachmentOffset = App.Placement(V(0, 0, 90), App.Rotation())
sketch15.addGeometry([
    Part.Circle(V(134.5, 13.2, 0), V(0, 0, 1), 1.6),
    Part.Circle(V(98.5, 13.2, 0), V(0, 0, 1), 1.7),
    Part.Circle(V(83, 13.2, 0), V(0, 0, 1), 1.4),
    Part.Circle(V(47, 13.2, 0), V(0, 0, 1), 1.6),
    Part.Circle(V(39.2, 5.5, 0), V(0, 0, 1), 1.5),
    Part.Circle(V(39.2, -5.5, 0), V(0, 0, 1), 1.5),
], False)
sketch15.addConstraint([
    Sketcher.Constraint("Symmetric", 4, 3, 5, 3, -1),
    Sketcher.Constraint("Horizontal", 0, 3, 1, 3),
    Sketcher.Constraint("Horizontal", 1, 3, 2, 3),
    Sketcher.Constraint("Horizontal", 2, 3, 3, 3),
    Sketcher.Constraint("DistanceX", -1, 1, 2, 3, 83.0),
    Sketcher.Constraint("DistanceX", -1, 1, 3, 3, 47.0),
    Sketcher.Constraint("DistanceX", 1, 3, 0, 3, 36.0),
    Sketcher.Constraint("DistanceY", 5, 3, 4, 3, 11.0),
    Sketcher.Constraint("Diameter", 3, 3.146501),
    Sketcher.Constraint("DistanceX", -1, 1, 0, 3, 134.5),
    Sketcher.Constraint("Diameter", 2, 2.861491),
    Sketcher.Constraint("Diameter", 4, 3.00406),
    Sketcher.Constraint("DistanceY", -1, 1, 0, 3, 13.25),
    Sketcher.Constraint("DistanceX", -1, 1, 4, 3, 39.25),
    Sketcher.Constraint("Diameter", 0, 3.299897),
    Sketcher.Constraint("Diameter", 1, 3.321163),
    Sketcher.Constraint("Diameter", 5, 3.075912),
])
pad4 = body.newObject("PartDesign::Pad", "Pad003")
pad4.Profile = sketch15
pad4.Length = 90
pad4.Reversed = True

doc.recompute()
